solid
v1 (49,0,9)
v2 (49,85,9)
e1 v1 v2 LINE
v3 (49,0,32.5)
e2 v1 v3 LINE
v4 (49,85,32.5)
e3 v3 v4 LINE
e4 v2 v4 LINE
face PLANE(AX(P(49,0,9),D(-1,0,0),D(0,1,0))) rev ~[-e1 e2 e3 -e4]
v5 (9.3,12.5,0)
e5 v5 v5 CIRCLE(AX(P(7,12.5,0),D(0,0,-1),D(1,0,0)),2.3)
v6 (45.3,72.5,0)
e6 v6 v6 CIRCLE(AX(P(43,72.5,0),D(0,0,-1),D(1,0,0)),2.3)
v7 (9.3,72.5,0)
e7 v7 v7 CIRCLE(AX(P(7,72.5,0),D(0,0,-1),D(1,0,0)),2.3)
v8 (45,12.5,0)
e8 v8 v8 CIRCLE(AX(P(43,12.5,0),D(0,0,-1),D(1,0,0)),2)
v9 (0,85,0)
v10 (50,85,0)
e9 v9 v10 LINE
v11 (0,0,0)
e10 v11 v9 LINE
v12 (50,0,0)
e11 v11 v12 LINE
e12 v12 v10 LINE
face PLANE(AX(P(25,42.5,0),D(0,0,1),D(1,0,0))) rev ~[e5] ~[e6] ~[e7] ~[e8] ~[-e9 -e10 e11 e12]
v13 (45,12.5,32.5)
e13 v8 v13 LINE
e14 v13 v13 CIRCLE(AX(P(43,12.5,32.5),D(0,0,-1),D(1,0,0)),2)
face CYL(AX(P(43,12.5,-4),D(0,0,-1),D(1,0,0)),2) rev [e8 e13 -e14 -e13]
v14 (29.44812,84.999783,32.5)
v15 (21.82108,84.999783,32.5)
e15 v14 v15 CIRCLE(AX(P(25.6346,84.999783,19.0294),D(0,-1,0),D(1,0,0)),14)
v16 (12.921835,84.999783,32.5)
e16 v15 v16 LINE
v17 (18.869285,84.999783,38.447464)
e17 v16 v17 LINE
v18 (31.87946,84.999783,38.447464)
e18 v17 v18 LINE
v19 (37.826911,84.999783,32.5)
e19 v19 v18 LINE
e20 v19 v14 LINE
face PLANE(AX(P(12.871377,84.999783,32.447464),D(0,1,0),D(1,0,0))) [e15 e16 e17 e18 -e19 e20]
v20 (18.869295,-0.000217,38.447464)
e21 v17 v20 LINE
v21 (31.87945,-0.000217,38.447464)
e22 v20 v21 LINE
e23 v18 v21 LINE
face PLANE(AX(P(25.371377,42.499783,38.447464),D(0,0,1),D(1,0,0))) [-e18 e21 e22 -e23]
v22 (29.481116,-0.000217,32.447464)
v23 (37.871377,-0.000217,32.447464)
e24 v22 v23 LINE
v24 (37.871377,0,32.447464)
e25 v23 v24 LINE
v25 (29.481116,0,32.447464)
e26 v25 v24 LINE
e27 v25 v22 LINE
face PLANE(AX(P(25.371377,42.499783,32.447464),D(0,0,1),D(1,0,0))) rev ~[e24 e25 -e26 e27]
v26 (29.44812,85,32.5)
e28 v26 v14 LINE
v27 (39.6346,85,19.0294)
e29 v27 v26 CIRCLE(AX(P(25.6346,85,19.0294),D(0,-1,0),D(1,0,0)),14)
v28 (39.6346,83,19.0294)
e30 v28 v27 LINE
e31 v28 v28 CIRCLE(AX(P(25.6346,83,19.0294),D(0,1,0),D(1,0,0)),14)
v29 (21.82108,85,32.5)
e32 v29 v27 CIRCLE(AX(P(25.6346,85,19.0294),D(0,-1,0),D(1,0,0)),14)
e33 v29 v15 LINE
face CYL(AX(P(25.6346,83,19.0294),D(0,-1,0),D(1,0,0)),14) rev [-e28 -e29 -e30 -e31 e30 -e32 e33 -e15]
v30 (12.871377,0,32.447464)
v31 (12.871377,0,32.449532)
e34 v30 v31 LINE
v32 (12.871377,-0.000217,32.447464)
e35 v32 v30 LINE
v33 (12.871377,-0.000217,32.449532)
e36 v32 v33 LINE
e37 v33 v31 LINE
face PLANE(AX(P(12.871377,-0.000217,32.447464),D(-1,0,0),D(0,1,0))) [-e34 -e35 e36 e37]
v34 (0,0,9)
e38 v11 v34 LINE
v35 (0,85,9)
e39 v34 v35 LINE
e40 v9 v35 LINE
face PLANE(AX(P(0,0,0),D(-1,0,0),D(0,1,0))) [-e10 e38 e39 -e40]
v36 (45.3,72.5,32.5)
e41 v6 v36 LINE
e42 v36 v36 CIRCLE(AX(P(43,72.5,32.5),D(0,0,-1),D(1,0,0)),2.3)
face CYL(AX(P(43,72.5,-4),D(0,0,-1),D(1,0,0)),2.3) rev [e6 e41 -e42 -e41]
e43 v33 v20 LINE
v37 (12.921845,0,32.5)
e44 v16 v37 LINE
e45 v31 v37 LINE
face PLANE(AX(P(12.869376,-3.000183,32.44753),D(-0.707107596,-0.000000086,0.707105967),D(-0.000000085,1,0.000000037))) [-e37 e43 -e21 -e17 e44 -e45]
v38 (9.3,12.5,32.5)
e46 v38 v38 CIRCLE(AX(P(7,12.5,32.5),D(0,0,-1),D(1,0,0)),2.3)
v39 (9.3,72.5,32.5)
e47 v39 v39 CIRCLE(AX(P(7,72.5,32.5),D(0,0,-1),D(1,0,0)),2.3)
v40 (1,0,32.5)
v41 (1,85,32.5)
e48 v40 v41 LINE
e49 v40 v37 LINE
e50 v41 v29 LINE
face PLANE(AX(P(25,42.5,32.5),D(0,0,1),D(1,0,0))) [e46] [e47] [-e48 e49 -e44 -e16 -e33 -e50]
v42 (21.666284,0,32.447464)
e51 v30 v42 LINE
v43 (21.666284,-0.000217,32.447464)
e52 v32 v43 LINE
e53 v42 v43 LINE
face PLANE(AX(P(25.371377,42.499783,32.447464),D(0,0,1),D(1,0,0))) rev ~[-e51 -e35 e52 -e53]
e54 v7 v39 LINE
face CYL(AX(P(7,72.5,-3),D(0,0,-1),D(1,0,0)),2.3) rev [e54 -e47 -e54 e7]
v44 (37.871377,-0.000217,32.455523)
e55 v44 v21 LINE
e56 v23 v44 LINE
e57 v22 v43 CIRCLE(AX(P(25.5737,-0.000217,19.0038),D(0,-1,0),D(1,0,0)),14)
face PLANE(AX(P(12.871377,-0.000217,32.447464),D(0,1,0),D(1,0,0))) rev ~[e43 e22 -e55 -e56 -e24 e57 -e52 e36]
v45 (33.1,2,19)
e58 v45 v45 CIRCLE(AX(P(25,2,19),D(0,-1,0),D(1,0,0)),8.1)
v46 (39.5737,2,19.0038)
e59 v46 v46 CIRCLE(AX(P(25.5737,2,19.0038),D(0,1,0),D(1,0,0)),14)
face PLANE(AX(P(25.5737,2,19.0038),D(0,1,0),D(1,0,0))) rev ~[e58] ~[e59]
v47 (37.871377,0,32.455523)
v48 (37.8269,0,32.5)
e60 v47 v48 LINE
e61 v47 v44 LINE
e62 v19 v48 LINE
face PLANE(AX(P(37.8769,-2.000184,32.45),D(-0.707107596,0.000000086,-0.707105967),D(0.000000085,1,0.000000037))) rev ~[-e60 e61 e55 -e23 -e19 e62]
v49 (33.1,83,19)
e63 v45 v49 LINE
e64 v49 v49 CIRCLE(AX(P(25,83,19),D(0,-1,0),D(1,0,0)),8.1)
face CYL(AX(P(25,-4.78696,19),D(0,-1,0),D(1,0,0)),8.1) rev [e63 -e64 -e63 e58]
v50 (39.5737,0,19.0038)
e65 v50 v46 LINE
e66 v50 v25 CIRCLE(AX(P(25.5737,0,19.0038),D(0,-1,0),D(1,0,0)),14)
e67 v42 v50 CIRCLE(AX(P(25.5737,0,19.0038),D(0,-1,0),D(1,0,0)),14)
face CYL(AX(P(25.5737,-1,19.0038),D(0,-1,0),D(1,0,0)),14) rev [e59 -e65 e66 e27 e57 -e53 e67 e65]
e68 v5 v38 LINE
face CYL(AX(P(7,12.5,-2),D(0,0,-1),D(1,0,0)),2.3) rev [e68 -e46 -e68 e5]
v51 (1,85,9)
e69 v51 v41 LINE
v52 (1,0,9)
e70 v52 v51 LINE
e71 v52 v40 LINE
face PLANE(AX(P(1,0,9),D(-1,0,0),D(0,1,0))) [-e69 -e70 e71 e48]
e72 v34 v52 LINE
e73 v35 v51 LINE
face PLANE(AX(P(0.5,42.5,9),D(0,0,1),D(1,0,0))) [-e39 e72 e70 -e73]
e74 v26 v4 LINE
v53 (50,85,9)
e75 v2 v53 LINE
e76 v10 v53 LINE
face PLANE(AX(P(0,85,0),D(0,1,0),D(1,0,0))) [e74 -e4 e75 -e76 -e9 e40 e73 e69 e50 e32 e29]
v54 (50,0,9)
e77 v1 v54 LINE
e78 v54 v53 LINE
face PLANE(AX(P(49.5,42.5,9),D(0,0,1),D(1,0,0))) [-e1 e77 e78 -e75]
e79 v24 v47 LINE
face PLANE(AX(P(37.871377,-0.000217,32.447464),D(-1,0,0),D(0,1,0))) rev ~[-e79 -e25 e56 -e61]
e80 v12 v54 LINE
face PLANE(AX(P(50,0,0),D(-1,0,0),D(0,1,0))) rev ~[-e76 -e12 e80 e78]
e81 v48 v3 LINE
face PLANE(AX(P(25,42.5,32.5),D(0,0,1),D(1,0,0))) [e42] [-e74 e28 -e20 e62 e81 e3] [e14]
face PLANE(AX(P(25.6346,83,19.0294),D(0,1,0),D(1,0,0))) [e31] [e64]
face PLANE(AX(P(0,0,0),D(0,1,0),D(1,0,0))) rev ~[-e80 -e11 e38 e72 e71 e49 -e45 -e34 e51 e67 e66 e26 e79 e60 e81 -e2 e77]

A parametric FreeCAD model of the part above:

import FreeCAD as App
import Part
import Sketcher

doc = App.newDocument("Part")
body = doc.addObject("PartDesign::Body", "Body")

sketch1 = doc.addObject("Sketcher::SketchObject", "Sketch")
body.addObject(sketch1)
sketch1.AttachmentSupport = (doc.XY_Plane, [""])
sketch1.MapMode = "FlatFace"
sketch1.addGeometry(Part.Circle(App.Vector(0, 0, 0), App.Vector(0, 0, 1), 14), False)
sketch1.addConstraint([
    Sketcher.Constraint("Coincident", 0, 3, -1, 1),
    Sketcher.Constraint("Diameter", 0, 28.0),
])
pad1 = doc.addObject("PartDesign::Pad", "Pad")
body.addObject(pad1)
pad1.Profile = sketch1
pad1.Length = 3
body2 = doc.addObject("PartDesign::Body", "Body001")
doc.recompute()

body.Placement = App.Placement(App.Vector(0, 0, 0), App.Rotation(App.Vector(1, 0, 0), 270))
boolean = doc.addObject("PartDesign::Boolean", "Boolean")
body2.addObject(boolean)
boolean.Type = "Fuse"
boolean.addObjects([body])
body3 = doc.addObject("PartDesign::Body", "Body002")
doc.recompute()

body2.Placement = App.Placement(App.Vector(25.6346, 83, 19.0294), App.Rotation(App.Vector(0, 0, 1), 0))
boolean2 = doc.addObject("PartDesign::Boolean", "Boolean001")
body3.addObject(boolean2)
boolean2.Type = "Fuse"
boolean2.addObjects([body2])
body4 = doc.addObject("PartDesign::Body", "Body003")

sketch2 = doc.addObject("Sketcher::SketchObject", "Sketch001")
body4.addObject(sketch2)
sketch2.AttachmentSupport = (doc.getObject("XY_Plane003"), [""])
sketch2.MapMode = "FlatFace"
sketch2.addGeometry(Part.Circle(App.Vector(0, 0, 0), App.Vector(0, 0, 1), 14), False)
sketch2.addConstraint([
    Sketcher.Constraint("Coincident", 0, 3, -1, 1),
    Sketcher.Constraint("Diameter", 0, 28.0),
])
pad2 = doc.addObject("PartDesign::Pad", "Pad001")
body4.addObject(pad2)
pad2.Profile = sketch2
pad2.Length = 3
body5 = doc.addObject("PartDesign::Body", "Body004")
doc.recompute()

body4.Placement = App.Placement(App.Vector(0, 0, 0), App.Rotation(App.Vector(1, 0, 0), 270))
boolean3 = doc.addObject("PartDesign::Boolean", "Boolean002")
body5.addObject(boolean3)
boolean3.Type = "Fuse"
boolean3.addObjects([body4])
body6 = doc.addObject("PartDesign::Body", "Body005")
doc.recompute()

body5.Placement = App.Placement(App.Vector(25.5737, -1, 19.0038), App.Rotation(App.Vector(0, 0, 1), 0))
boolean4 = doc.addObject("PartDesign::Boolean", "Boolean003")
body6.addObject(boolean4)
boolean4.Type = "Fuse"
boolean4.addObjects([body5])
body7 = doc.addObject("PartDesign::Body", "Body006")

sketch3 = doc.addObject("Sketcher::SketchObject", "Sketch002")
body7.addObject(sketch3)
sketch3.AttachmentSupport = (doc.getObject("XY_Plane006"), [""])
sketch3.MapMode = "FlatFace"
sketch3.AttachmentOffset = App.Placement(App.Vector(0, 0, -4), App.Rotation())
sketch3.addGeometry(Part.Circle(App.Vector(43, 72.5, 0), App.Vector(0, 0, 1), 2.3), False)
sketch3.addConstraint([
    Sketcher.Constraint("Diameter", 0, 4.6),
    Sketcher.Constraint("DistanceX", -1, 1, 0, 3, 43.0),
    Sketcher.Constraint("DistanceY", -1, 1, 0, 3, 72.5),
])
pad3 = doc.addObject("PartDesign::Pad", "Pad002")
body7.addObject(pad3)
pad3.Profile = sketch3
pad3.Length = 40
body8 = doc.addObject("PartDesign::Body", "Body007")

sketch4 = doc.addObject("Sketcher::SketchObject", "Sketch003")
body8.addObject(sketch4)
sketch4.AttachmentSupport = (doc.getObject("XY_Plane007"), [""])
sketch4.MapMode = "FlatFace"
sketch4.AttachmentOffset = App.Placement(App.Vector(0, 0, -4), App.Rotation())
sketch4.addGeometry(Part.Circle(App.Vector(43, 12.5, 0), App.Vector(0, 0, 1), 2), False)
sketch4.addConstraint([
    Sketcher.Constraint("Diameter", 0, 4.0),
    Sketcher.Constraint("DistanceX", -1, 1, 0, 3, 43.0),
    Sketcher.Constraint("DistanceY", -1, 1, 0, 3, 12.5),
])
pad4 = doc.addObject("PartDesign::Pad", "Pad003")
body8.addObject(pad4)
pad4.Profile = sketch4
pad4.Length = 40
body9 = doc.addObject("PartDesign::Body", "Body008")

sketch5 = doc.addObject("Sketcher::SketchObject", "Sketch004")
body9.addObject(sketch5)
sketch5.AttachmentSupport = (doc.getObject("XY_Plane008"), [""])
sketch5.MapMode = "FlatFace"
sketch5.AttachmentOffset = App.Placement(App.Vector(0, 0, -3), App.Rotation())
sketch5.addGeometry(Part.Circle(App.Vector(7, 72.5, 0), App.Vector(0, 0, 1), 2.3), False)
sketch5.addConstraint([
    Sketcher.Constraint("Diameter", 0, 4.6),
    Sketcher.Constraint("DistanceX", -1, 1, 0, 3, 7.0),
    Sketcher.Constraint("DistanceY", -1, 1, 0, 3, 72.5),
])
pad5 = doc.addObject("PartDesign::Pad", "Pad004")
body9.addObject(pad5)
pad5.Profile = sketch5
pad5.Length = 40
body10 = doc.addObject("PartDesign::Body", "Body009")

sketch6 = doc.addObject("Sketcher::SketchObject", "Sketch005")
body10.addObject(sketch6)
sketch6.AttachmentSupport = (doc.getObject("XY_Plane009"), [""])
sketch6.MapMode = "FlatFace"
sketch6.AttachmentOffset = App.Placement(App.Vector(0, 0, -2), App.Rotation())
sketch6.addGeometry(Part.Circle(App.Vector(7, 12.5, 0), App.Vector(0, 0, 1), 2.3), False)
sketch6.addConstraint([
    Sketcher.Constraint("Diameter", 0, 4.6),
    Sketcher.Constraint("DistanceX", -1, 1, 0, 3, 7.0),
    Sketcher.Constraint("DistanceY", -1, 1, 0, 3, 12.5),
])
pad6 = doc.addObject("PartDesign::Pad", "Pad005")
body10.addObject(pad6)
pad6.Profile = sketch6
pad6.Length = 40
body11 = doc.addObject("PartDesign::Body", "Body010")

sketch7 = doc.addObject("Sketcher::SketchObject", "Sketch006")
body11.addObject(sketch7)
sketch7.AttachmentSupport = (doc.getObject("XY_Plane010"), [""])
sketch7.MapMode = "FlatFace"
sketch7.AttachmentOffset = App.Placement(App.Vector(0, 0, 9), App.Rotation())
sketch7.addGeometry([
    Part.LineSegment(App.Vector(49, 85, 0), App.Vector(49, 0, 0)),
    Part.LineSegment(App.Vector(49, 0, 0), App.Vector(50, 0, 0)),
    Part.LineSegment(App.Vector(50, 0, 0), App.Vector(50, 85, 0)),
    Part.LineSegment(App.Vector(50, 85, 0), App.Vector(49, 85, 0)),
], False)
sketch7.addConstraint([
    Sketcher.Constraint("Coincident", 0, 2, 1, 1),
    Sketcher.Constraint("Coincident", 1, 2, 2, 1),
    Sketcher.Constraint("Coincident", 2, 2, 3, 1),
    Sketcher.Constraint("Coincident", 3, 2, 0, 1),
    Sketcher.Constraint("Vertical", 0),
    Sketcher.Constraint("Horizontal", 1),
    Sketcher.Constraint("Vertical", 2),
    Sketcher.Constraint("Horizontal", 3),
    Sketcher.Constraint("PointOnObject", 0, 2, -1),
    Sketcher.Constraint("DistanceX", 1, 1, 1, 2, 1.0),
    Sketcher.Constraint("DistanceY", 0, 2, 0, 1, 85.0),
    Sketcher.Constraint("DistanceX", -1, 1, 0, 2, 49.0),
])
pad7 = doc.addObject("PartDesign::Pad", "Pad006")
body11.addObject(pad7)
pad7.Profile = sketch7
pad7.Length = 23.5
body12 = doc.addObject("PartDesign::Body", "Body011")

sketch8 = doc.addObject("Sketcher::SketchObject", "Sketch007")
body12.addObject(sketch8)
sketch8.AttachmentSupport = (doc.getObject("XY_Plane011"), [""])
sketch8.MapMode = "FlatFace"
sketch8.AttachmentOffset = App.Placement(App.Vector(0, 0, 9), App.Rotation())
sketch8.addGeometry([
    Part.LineSegment(App.Vector(0, 85, 0), App.Vector(0, 0, 0)),
    Part.LineSegment(App.Vector(0, 0, 0), App.Vector(1, 0, 0)),
    Part.LineSegment(App.Vector(1, 0, 0), App.Vector(1, 85, 0)),
    Part.LineSegment(App.Vector(1, 85, 0), App.Vector(0, 85, 0)),
], False)
sketch8.addConstraint([
    Sketcher.Constraint("Coincident", 0, 2, 1, 1),
    Sketcher.Constraint("Coincident", 1, 2, 2, 1),
    Sketcher.Constraint("Coincident", 2, 2, 3, 1),
    Sketcher.Constraint("Coincident", 3, 2, 0, 1),
    Sketcher.Constraint("Vertical", 0),
    Sketcher.Constraint("Horizontal", 1),
    Sketcher.Constraint("Vertical", 2),
    Sketcher.Constraint("Horizontal", 3),
    Sketcher.Constraint("Coincident", 0, 2, -1, 1),
    Sketcher.Constraint("DistanceX", 1, 1, 1, 2, 1.0),
    Sketcher.Constraint("DistanceY", 0, 2, 0, 1, 85.0),
])
pad8 = doc.addObject("PartDesign::Pad", "Pad007")
body12.addObject(pad8)
pad8.Profile = sketch8
pad8.Length = 23.5
body13 = doc.addObject("PartDesign::Body", "Body012")

sketch9 = doc.addObject("Sketcher::SketchObject", "Sketch008")
body13.addObject(sketch9)
sketch9.AttachmentSupport = (doc.getObject("XY_Plane012"), [""])
sketch9.MapMode = "FlatFace"
sketch9.addGeometry([
    Part.LineSegment(App.Vector(0, 90, 0), App.Vector(0, 0, 0)),
    Part.LineSegment(App.Vector(0, 0, 0), App.Vector(10, 0, 0)),
    Part.LineSegment(App.Vector(10, 0, 0), App.Vector(10, 90, 0)),
    Part.LineSegment(App.Vector(10, 90, 0), App.Vector(0, 90, 0)),
], False)
sketch9.addConstraint([
    Sketcher.Constraint("Coincident", 0, 2, 1, 1),
    Sketcher.Constraint("Coincident", 1, 2, 2, 1),
    Sketcher.Constraint("Coincident", 2, 2, 3, 1),
    Sketcher.Constraint("Coincident", 3, 2, 0, 1),
    Sketcher.Constraint("Vertical", 0),
    Sketcher.Constraint("Horizontal", 1),
    Sketcher.Constraint("Vertical", 2),
    Sketcher.Constraint("Horizontal", 3),
    Sketcher.Constraint("Coincident", 0, 2, -1, 1),
    Sketcher.Constraint("DistanceX", 1, 1, 1, 2, 10.0),
    Sketcher.Constraint("DistanceY", 0, 2, 0, 1, 90.0),
])
pad9 = doc.addObject("PartDesign::Pad", "Pad008")
body13.addObject(pad9)
pad9.Profile = sketch9
pad9.Length = 10
body14 = doc.addObject("PartDesign::Body", "Body013")
doc.recompute()

body13.Placement = App.Placement(App.Vector(0, 0, 0), App.Rotation(App.Vector(1, 0, 0), 0.000003))
boolean5 = doc.addObject("PartDesign::Boolean", "Boolean004")
body14.addObject(boolean5)
boolean5.Type = "Fuse"
boolean5.addObjects([body13])
body15 = doc.addObject("PartDesign::Body", "Body014")
doc.recompute()

body14.Placement = App.Placement(App.Vector(0, 0, 0), App.Rotation(App.Vector(0, 1, 0), 315.000066))
boolean6 = doc.addObject("PartDesign::Boolean", "Boolean005")
body15.addObject(boolean6)
boolean6.Type = "Fuse"
boolean6.addObjects([body14])
body16 = doc.addObject("PartDesign::Body", "Body015")
doc.recompute()

body15.Placement = App.Placement(App.Vector(-18.82, -2, 2.25), App.Rotation(App.Vector(0, 0, 1), 359.999993))
boolean7 = doc.addObject("PartDesign::Boolean", "Boolean006")
body16.addObject(boolean7)
boolean7.Type = "Fuse"
boolean7.addObjects([body15])
body17 = doc.addObject("PartDesign::Body", "Body016")

sketch10 = doc.addObject("Sketcher::SketchObject", "Sketch009")
body17.addObject(sketch10)
sketch10.AttachmentSupport = (doc.getObject("XY_Plane016"), [""])
sketch10.MapMode = "FlatFace"
sketch10.addGeometry([
    Part.LineSegment(App.Vector(0, 90, 0), App.Vector(0, 0, 0)),
    Part.LineSegment(App.Vector(0, 0, 0), App.Vector(10, 0, 0)),
    Part.LineSegment(App.Vector(10, 0, 0), App.Vector(10, 90, 0)),
    Part.LineSegment(App.Vector(10, 90, 0), App.Vector(0, 90, 0)),
], False)
sketch10.addConstraint([
    Sketcher.Constraint("Coincident", 0, 2, 1, 1),
    Sketcher.Constraint("Coincident", 1, 2, 2, 1),
    Sketcher.Constraint("Coincident", 2, 2, 3, 1),
    Sketcher.Constraint("Coincident", 3, 2, 0, 1),
    Sketcher.Constraint("Vertical", 0),
    Sketcher.Constraint("Horizontal", 1),
    Sketcher.Constraint("Vertical", 2),
    Sketcher.Constraint("Horizontal", 3),
    Sketcher.Constraint("Coincident", 0, 2, -1, 1),
    Sketcher.Constraint("DistanceX", 1, 1, 1, 2, 10.0),
    Sketcher.Constraint("DistanceY", 0, 2, 0, 1, 90.0),
])
pad10 = doc.addObject("PartDesign::Pad", "Pad009")
body17.addObject(pad10)
pad10.Profile = sketch10
pad10.Length = 10
body18 = doc.addObject("PartDesign::Body", "Body017")
doc.recompute()

body17.Placement = App.Placement(App.Vector(0, 0, 0), App.Rotation(App.Vector(1, 0, 0), 0.000003))
boolean8 = doc.addObject("PartDesign::Boolean", "Boolean007")
body18.addObject(boolean8)
boolean8.Type = "Fuse"
boolean8.addObjects([body17])
body19 = doc.addObject("PartDesign::Body", "Body018")
doc.recompute()

body18.Placement = App.Placement(App.Vector(0, 0, 0), App.Rotation(App.Vector(0, 1, 0), 44.999934))
boolean9 = doc.addObject("PartDesign::Boolean", "Boolean008")
body19.addObject(boolean9)
boolean9.Type = "Fuse"
boolean9.addObjects([body18])
body20 = doc.addObject("PartDesign::Body", "Body019")
doc.recompute()

body19.Placement = App.Placement(App.Vector(-50.8986, -3, 9.31859), App.Rotation(App.Vector(0, 0, 1), 0.000007))
boolean10 = doc.addObject("PartDesign::Boolean", "Boolean009")
body20.addObject(boolean10)
boolean10.Type = "Fuse"
boolean10.addObjects([body19])
body21 = doc.addObject("PartDesign::Body", "Body020")

sketch11 = doc.addObject("Sketcher::SketchObject", "Sketch010")
body21.addObject(sketch11)
sketch11.AttachmentSupport = (doc.getObject("XY_Plane020"), [""])
sketch11.MapMode = "FlatFace"
sketch11.AttachmentOffset = App.Placement(App.Vector(0, 0, 2.247464), App.Rotation())
sketch11.addGeometry([
    Part.LineSegment(App.Vector(-44, 85, 0), App.Vector(-44, 0, 0)),
    Part.LineSegment(App.Vector(-44, 0, 0), App.Vector(-19, 0, 0)),
    Part.LineSegment(App.Vector(-19, 0, 0), App.Vector(-19, 85, 0)),
    Part.LineSegment(App.Vector(-19, 85, 0), App.Vector(-44, 85, 0)),
], False)
sketch11.addConstraint([
    Sketcher.Constraint("Coincident", 0, 2, 1, 1),
    Sketcher.Constraint("Coincident", 1, 2, 2, 1),
    Sketcher.Constraint("Coincident", 2, 2, 3, 1),
    Sketcher.Constraint("Coincident", 3, 2, 0, 1),
    Sketcher.Constraint("Vertical", 0),
    Sketcher.Constraint("Horizontal", 1),
    Sketcher.Constraint("Vertical", 2),
    Sketcher.Constraint("Horizontal", 3),
    Sketcher.Constraint("DistanceX", 1, 1, 1, 2, 25.0),
    Sketcher.Constraint("DistanceY", 0, 2, 0, 1, 85.0),
    Sketcher.Constraint("DistanceX", 0, 2, -1, 1, 43.825523),
    Sketcher.Constraint("DistanceY", -1, 1, 2, 2, 84.999967),
])
pad11 = doc.addObject("PartDesign::Pad", "Pad010")
body21.addObject(pad11)
pad11.Profile = sketch11
pad11.Length = 6
doc.recompute()

boolean11 = doc.addObject("PartDesign::Boolean", "Boolean010")
body21.addObject(boolean11)
boolean11.Type = "Cut"
boolean11.addObjects([body20])
doc.recompute()

boolean12 = doc.addObject("PartDesign::Boolean", "Boolean011")
body21.addObject(boolean12)
boolean12.Type = "Cut"
boolean12.addObjects([body16])
body22 = doc.addObject("PartDesign::Body", "Body021")
doc.recompute()

body21.Placement = App.Placement(App.Vector(56.6969, -0.000184, 30.2), App.Rotation(App.Vector(0, 0, 1), 0))
boolean13 = doc.addObject("PartDesign::Boolean", "Boolean012")
body22.addObject(boolean13)
boolean13.Type = "Fuse"
boolean13.addObjects([body21])
body23 = doc.addObject("PartDesign::Body", "Body022")

sketch12 = doc.addObject("Sketcher::SketchObject", "Sketch011")
body23.addObject(sketch12)
sketch12.AttachmentSupport = (doc.getObject("XY_Plane022"), [""])
sketch12.MapMode = "FlatFace"
sketch12.addGeometry(Part.Circle(App.Vector(0, 0, 0), App.Vector(0, 0, 1), 8), False)
sketch12.addConstraint([
    Sketcher.Constraint("Coincident", 0, 3, -1, 1),
    Sketcher.Constraint("Diameter", 0, 16.2),
])
pad12 = doc.addObject("PartDesign::Pad", "Pad011")
body23.addObject(pad12)
pad12.Profile = sketch12
pad12.Length = 100
body24 = doc.addObject("PartDesign::Body", "Body023")
doc.recompute()

body23.Placement = App.Placement(App.Vector(0, 0, 0), App.Rotation(App.Vector(1, 0, 0), 270))
boolean14 = doc.addObject("PartDesign::Boolean", "Boolean013")
body24.addObject(boolean14)
boolean14.Type = "Fuse"
boolean14.addObjects([body23])
body25 = doc.addObject("PartDesign::Body", "Body024")
doc.recompute()

body24.Placement = App.Placement(App.Vector(25, -4.78696, 19), App.Rotation(App.Vector(0, 0, 1), 0))
boolean15 = doc.addObject("PartDesign::Boolean", "Boolean014")
body25.addObject(boolean15)
boolean15.Type = "Fuse"
boolean15.addObjects([body24])
body26 = doc.addObject("PartDesign::Body", "Body025")

sketch13 = doc.addObject("Sketcher::SketchObject", "Sketch012")
body26.addObject(sketch13)
sketch13.AttachmentSupport = (doc.getObject("XY_Plane025"), [""])
sketch13.MapMode = "FlatFace"
sketch13.addGeometry([
    Part.LineSegment(App.Vector(0, 85, 0), App.Vector(0, 0, 0)),
    Part.LineSegment(App.Vector(0, 0, 0), App.Vector(50, 0, 0)),
    Part.LineSegment(App.Vector(50, 0, 0), App.Vector(50, 85, 0)),
    Part.LineSegment(App.Vector(50, 85, 0), App.Vector(0, 85, 0)),
], False)
sketch13.addConstraint([
    Sketcher.Constraint("Coincident", 0, 2, 1, 1),
    Sketcher.Constraint("Coincident", 1, 2, 2, 1),
    Sketcher.Constraint("Coincident", 2, 2, 3, 1),
    Sketcher.Constraint("Coincident", 3, 2, 0, 1),
    Sketcher.Constraint("Vertical", 0),
    Sketcher.Constraint("Horizontal", 1),
    Sketcher.Constraint("Vertical", 2),
    Sketcher.Constraint("Horizontal", 3),
    Sketcher.Constraint("Coincident", 0, 2, -1, 1),
    Sketcher.Constraint("DistanceX", 1, 1, 1, 2, 50.0),
    Sketcher.Constraint("DistanceY", 0, 2, 0, 1, 85.0),
])
pad13 = doc.addObject("PartDesign::Pad", "Pad012")
body26.addObject(pad13)
pad13.Profile = sketch13
pad13.Length = 32.5
doc.recompute()

boolean16 = doc.addObject("PartDesign::Boolean", "Boolean015")
body26.addObject(boolean16)
boolean16.Type = "Cut"
boolean16.addObjects([body25])
doc.recompute()

boolean17 = doc.addObject("PartDesign::Boolean", "Boolean016")
body26.addObject(boolean17)
boolean17.Type = "Fuse"
boolean17.addObjects([body22])
doc.recompute()

boolean18 = doc.addObject("PartDesign::Boolean", "Boolean017")
body26.addObject(boolean18)
boolean18.Type = "Cut"
boolean18.addObjects([body12])
doc.recompute()

boolean19 = doc.addObject("PartDesign::Boolean", "Boolean018")
body26.addObject(boolean19)
boolean19.Type = "Cut"
boolean19.addObjects([body11])
doc.recompute()

boolean20 = doc.addObject("PartDesign::Boolean", "Boolean019")
body26.addObject(boolean20)
boolean20.Type = "Cut"
boolean20.addObjects([body10])
doc.recompute()

boolean21 = doc.addObject("PartDesign::Boolean", "Boolean020")
body26.addObject(boolean21)
boolean21.Type = "Cut"
boolean21.addObjects([body9])
doc.recompute()

boolean22 = doc.addObject("PartDesign::Boolean", "Boolean021")
body26.addObject(boolean22)
boolean22.Type = "Cut"
boolean22.addObjects([body8])
doc.recompute()

boolean23 = doc.addObject("PartDesign::Boolean", "Boolean022")
body26.addObject(boolean23)
boolean23.Type = "Cut"
boolean23.addObjects([body7])
doc.recompute()

body27 = doc.addObject("PartDesign::Body", "Body026")
body27.BaseFeature = body6
boolean24 = doc.addObject("PartDesign::Boolean", "Boolean023")
body26.addObject(boolean24)
boolean24.Type = "Cut"
boolean24.addObjects([body27])
doc.recompute()

boolean25 = doc.addObject("PartDesign::Boolean", "Boolean024")
body26.addObject(boolean25)
boolean25.Type = "Cut"
boolean25.addObjects([body6])
doc.recompute()

boolean26 = doc.addObject("PartDesign::Boolean", "Boolean025")
body26.addObject(boolean26)
boolean26.Type = "Cut"
boolean26.addObjects([body3])

doc.recompute()
